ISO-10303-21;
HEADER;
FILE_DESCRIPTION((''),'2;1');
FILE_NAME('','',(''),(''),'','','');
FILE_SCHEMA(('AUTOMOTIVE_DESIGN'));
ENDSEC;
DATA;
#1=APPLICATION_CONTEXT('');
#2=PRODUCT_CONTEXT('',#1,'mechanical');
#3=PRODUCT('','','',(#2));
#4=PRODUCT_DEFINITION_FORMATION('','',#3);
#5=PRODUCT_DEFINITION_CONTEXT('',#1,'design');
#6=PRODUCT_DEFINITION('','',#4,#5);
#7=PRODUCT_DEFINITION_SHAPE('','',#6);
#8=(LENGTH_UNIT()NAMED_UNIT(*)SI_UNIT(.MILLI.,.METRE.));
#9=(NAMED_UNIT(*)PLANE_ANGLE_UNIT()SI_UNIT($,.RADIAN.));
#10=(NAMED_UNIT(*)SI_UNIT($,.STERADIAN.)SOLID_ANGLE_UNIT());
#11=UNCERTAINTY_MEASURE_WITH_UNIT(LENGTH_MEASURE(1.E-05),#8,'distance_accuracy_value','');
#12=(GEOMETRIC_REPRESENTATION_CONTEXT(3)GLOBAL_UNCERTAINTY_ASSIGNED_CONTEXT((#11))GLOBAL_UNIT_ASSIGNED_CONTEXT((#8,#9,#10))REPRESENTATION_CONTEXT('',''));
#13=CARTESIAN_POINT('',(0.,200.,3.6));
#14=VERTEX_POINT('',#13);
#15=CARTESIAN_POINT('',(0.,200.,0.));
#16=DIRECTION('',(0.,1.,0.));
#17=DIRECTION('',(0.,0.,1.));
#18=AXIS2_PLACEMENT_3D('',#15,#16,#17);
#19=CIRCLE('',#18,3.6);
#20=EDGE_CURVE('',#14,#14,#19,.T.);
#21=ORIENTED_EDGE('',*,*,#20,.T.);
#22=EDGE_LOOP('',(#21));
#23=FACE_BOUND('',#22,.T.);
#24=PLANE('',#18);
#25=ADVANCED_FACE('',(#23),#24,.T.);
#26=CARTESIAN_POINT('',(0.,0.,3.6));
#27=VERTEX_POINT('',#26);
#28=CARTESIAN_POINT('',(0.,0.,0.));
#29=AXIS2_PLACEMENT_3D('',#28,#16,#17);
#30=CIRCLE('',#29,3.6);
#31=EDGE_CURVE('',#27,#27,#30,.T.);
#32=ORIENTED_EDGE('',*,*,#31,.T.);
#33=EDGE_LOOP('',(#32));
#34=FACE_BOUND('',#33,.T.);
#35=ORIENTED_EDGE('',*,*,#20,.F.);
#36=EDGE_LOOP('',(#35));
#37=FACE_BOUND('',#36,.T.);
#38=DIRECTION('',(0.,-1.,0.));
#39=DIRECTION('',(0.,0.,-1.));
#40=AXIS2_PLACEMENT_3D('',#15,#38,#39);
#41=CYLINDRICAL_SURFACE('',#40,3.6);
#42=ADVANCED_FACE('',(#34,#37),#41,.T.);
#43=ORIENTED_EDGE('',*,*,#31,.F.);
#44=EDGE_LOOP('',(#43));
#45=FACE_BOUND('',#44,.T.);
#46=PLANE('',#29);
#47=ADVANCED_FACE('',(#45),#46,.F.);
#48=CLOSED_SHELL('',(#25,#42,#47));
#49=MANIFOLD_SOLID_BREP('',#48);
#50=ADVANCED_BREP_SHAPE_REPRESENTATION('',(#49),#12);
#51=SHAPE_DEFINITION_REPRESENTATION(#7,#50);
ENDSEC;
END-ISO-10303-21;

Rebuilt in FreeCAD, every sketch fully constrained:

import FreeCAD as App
import Part
import Sketcher

V = App.Vector
Q = App.Units.Quantity

doc = App.newDocument("Part")
params = doc.addObject("Spreadsheet::Sheet", "Params")
for row, (alias, value) in enumerate([
    ("sketch1_diameter", "7.2 mm"),
    ("pad1_length", "200 mm"),
], start=1):
    params.set(f"A{row}", alias)
    params.set(f"B{row}", "=" + value)
    params.setAlias(f"B{row}", alias)

body = doc.addObject("PartDesign::Body", "Body")

sketch1 = body.newObject("Sketcher::SketchObject", "Sketch")
sketch1.AttachmentSupport = (doc.getObject("XZ_Plane"), [""])
sketch1.MapMode = "FlatFace"
sketch1.addGeometry(Part.Circle(V(0, 0, 0), V(0, 0, 1), 3.6), False)
sketch1.addConstraint(Sketcher.Constraint("Coincident", 0, 3, -1, 1))
sketch1.addConstraint(Sketcher.Constraint("Diameter", 0, Q("7.2 mm")))
sketch1.setExpression("Constraints[1]", "Params.sketch1_diameter")
pad1 = body.newObject("PartDesign::Pad", "Pad")
pad1.Profile = sketch1
pad1.setExpression("Length", "Params.pad1_length")
pad1.Reversed = True

doc.recompute()
